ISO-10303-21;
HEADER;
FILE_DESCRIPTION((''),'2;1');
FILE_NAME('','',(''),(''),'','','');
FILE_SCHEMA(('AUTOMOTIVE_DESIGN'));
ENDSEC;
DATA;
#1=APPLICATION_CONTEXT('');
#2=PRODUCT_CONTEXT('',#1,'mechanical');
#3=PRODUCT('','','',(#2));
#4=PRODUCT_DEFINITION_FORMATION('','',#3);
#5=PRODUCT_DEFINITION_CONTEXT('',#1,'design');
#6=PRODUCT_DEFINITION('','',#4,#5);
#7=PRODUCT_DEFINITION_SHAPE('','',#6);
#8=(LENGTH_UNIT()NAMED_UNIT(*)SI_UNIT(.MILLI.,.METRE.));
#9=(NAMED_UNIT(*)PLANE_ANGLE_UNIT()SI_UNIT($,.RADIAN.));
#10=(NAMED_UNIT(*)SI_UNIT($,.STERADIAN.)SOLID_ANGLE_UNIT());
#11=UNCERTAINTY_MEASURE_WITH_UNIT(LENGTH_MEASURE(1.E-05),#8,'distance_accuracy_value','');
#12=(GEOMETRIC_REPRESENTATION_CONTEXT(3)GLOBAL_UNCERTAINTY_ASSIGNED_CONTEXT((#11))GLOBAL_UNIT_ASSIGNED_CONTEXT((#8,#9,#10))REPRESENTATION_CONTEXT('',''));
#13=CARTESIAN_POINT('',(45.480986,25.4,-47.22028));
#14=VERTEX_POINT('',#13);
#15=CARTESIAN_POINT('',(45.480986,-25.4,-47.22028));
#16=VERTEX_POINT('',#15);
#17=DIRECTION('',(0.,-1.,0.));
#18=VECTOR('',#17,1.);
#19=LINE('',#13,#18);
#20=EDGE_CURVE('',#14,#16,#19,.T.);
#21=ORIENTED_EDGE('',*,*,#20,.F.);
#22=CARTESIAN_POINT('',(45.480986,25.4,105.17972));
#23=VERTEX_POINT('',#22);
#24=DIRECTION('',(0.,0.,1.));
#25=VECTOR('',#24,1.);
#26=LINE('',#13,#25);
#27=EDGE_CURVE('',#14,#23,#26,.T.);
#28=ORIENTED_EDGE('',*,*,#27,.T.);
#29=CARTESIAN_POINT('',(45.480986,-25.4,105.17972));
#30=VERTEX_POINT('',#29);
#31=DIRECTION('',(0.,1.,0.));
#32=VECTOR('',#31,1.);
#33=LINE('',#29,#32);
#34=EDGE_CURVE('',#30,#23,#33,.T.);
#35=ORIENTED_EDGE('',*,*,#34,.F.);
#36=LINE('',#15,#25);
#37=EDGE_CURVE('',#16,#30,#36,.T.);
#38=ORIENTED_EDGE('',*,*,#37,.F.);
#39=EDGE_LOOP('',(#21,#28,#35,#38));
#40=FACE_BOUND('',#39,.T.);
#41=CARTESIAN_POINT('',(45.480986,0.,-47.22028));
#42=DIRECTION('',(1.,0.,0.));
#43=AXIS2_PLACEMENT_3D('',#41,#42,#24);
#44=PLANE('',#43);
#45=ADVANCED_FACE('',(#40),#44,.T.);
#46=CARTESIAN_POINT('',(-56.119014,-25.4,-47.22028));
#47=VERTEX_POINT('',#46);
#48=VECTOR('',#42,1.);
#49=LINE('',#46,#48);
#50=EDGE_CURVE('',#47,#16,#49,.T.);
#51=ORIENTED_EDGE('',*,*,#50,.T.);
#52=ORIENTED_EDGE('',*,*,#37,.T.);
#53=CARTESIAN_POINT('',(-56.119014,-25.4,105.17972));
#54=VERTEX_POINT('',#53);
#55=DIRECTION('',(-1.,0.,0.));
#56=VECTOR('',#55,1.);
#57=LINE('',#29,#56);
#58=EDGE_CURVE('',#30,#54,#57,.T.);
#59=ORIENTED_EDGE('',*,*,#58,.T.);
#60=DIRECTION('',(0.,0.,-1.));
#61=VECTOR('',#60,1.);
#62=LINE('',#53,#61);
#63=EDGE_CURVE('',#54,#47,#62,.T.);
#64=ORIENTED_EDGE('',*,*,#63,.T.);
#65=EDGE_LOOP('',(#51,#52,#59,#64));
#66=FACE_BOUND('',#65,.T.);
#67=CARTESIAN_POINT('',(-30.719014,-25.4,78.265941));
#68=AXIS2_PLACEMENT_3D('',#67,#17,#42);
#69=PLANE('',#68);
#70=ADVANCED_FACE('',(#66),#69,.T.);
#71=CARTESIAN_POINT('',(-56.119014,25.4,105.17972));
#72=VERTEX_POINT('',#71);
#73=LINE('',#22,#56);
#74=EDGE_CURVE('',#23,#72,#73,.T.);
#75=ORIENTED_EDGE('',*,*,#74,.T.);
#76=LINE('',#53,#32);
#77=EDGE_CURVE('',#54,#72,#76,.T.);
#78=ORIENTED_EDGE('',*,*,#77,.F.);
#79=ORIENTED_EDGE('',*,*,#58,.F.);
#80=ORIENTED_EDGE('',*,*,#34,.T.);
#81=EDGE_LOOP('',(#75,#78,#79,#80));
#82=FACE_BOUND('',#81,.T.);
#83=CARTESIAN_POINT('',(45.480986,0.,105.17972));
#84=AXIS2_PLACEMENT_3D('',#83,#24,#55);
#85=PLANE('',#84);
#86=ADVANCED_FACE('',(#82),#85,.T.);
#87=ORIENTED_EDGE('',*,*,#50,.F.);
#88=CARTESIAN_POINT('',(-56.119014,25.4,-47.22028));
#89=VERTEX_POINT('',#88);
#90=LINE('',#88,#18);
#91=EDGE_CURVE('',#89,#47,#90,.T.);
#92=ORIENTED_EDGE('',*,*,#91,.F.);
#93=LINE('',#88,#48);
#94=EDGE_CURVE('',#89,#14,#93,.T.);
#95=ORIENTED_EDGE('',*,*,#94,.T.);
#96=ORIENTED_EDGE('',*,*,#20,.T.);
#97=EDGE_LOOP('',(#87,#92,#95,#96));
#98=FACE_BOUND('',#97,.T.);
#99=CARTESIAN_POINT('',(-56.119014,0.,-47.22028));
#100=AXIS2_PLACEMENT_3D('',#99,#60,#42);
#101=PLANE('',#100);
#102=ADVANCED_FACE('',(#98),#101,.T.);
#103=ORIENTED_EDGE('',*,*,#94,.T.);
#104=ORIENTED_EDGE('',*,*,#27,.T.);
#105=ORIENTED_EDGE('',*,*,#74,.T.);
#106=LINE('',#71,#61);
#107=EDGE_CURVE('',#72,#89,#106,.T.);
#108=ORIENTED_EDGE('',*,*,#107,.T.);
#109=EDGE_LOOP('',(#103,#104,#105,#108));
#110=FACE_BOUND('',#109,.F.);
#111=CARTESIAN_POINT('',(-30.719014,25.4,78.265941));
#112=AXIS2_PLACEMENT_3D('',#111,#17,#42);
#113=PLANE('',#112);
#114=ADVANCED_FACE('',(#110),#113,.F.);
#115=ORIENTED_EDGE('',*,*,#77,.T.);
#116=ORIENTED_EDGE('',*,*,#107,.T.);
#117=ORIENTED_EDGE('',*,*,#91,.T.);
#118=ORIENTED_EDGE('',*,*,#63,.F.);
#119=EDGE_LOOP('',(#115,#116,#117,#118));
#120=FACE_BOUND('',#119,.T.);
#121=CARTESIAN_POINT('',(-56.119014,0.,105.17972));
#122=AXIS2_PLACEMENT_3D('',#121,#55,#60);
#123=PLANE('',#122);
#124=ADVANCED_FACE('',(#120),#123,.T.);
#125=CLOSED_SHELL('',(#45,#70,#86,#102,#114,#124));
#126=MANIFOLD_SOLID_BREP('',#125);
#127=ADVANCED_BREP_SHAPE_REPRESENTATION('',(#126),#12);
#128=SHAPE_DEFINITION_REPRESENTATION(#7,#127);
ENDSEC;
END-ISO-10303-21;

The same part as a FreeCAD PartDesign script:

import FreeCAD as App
import Part
import Sketcher
from FreeCAD import Vector
Q = App.Units.Quantity


def add_polygon(sketch, points):
    """Adds a closed chain of lines whose ends are joined by coincident constraints."""
    first, n = sketch.GeometryCount, len(points)
    for a, b in zip(points, points[1:] + points[:1]):
        sketch.addGeometry(Part.LineSegment(App.Vector(*a, 0), App.Vector(*b, 0)), False)
    for i in range(n):
        sketch.addConstraint(Sketcher.Constraint("Coincident", first + i, 2, first + (i + 1) % n, 1))

doc = App.newDocument("Part")
params = doc.addObject("Spreadsheet::Sheet", "Params")
for row, (alias, value) in enumerate([
    ("sketch1_width", "4 in"),
    ("sketch1_height", "6 in"),
    ("pad1_length", "2 in"),
], start=1):
    params.set(f"A{row}", alias)
    params.set(f"B{row}", "=" + value)
    params.setAlias(f"B{row}", alias)

body = doc.addObject("PartDesign::Body", "Body")

# Sketch on XZ plane
sketch1 = body.newObject("Sketcher::SketchObject", "Sketch")
sketch1.AttachmentSupport = (doc.getObject("XZ_Plane"), [""])
sketch1.MapMode = "FlatFace"
add_polygon(sketch1, [(-56, 105), (-56, -47), (45, -47), (45, 105)])  # lines 0-3
sketch1.addConstraint([
    Sketcher.Constraint("Vertical", 0),
    Sketcher.Constraint("Horizontal", 1),
    Sketcher.Constraint("Vertical", 2),
    Sketcher.Constraint("Horizontal", 3),
    Sketcher.Constraint("DistanceX", 1, 1, 1, 2, Q("4 in")),
    Sketcher.Constraint("DistanceY", 0, 2, 0, 1, Q("6 in")),
    Sketcher.Constraint("DistanceY", 0, 2, -1, 1, 47.22028),
    Sketcher.Constraint("DistanceX", 0, 2, -1, 1, 56.119014),
])
sketch1.setExpression("Constraints[8]", "Params.sketch1_width")
sketch1.setExpression("Constraints[9]", "Params.sketch1_height")
pad1 = body.newObject("PartDesign::Pad", "Pad")
pad1.Profile = sketch1
pad1.setExpression("Length", "Params.pad1_length")
pad1.Midplane = True

doc.recompute()
